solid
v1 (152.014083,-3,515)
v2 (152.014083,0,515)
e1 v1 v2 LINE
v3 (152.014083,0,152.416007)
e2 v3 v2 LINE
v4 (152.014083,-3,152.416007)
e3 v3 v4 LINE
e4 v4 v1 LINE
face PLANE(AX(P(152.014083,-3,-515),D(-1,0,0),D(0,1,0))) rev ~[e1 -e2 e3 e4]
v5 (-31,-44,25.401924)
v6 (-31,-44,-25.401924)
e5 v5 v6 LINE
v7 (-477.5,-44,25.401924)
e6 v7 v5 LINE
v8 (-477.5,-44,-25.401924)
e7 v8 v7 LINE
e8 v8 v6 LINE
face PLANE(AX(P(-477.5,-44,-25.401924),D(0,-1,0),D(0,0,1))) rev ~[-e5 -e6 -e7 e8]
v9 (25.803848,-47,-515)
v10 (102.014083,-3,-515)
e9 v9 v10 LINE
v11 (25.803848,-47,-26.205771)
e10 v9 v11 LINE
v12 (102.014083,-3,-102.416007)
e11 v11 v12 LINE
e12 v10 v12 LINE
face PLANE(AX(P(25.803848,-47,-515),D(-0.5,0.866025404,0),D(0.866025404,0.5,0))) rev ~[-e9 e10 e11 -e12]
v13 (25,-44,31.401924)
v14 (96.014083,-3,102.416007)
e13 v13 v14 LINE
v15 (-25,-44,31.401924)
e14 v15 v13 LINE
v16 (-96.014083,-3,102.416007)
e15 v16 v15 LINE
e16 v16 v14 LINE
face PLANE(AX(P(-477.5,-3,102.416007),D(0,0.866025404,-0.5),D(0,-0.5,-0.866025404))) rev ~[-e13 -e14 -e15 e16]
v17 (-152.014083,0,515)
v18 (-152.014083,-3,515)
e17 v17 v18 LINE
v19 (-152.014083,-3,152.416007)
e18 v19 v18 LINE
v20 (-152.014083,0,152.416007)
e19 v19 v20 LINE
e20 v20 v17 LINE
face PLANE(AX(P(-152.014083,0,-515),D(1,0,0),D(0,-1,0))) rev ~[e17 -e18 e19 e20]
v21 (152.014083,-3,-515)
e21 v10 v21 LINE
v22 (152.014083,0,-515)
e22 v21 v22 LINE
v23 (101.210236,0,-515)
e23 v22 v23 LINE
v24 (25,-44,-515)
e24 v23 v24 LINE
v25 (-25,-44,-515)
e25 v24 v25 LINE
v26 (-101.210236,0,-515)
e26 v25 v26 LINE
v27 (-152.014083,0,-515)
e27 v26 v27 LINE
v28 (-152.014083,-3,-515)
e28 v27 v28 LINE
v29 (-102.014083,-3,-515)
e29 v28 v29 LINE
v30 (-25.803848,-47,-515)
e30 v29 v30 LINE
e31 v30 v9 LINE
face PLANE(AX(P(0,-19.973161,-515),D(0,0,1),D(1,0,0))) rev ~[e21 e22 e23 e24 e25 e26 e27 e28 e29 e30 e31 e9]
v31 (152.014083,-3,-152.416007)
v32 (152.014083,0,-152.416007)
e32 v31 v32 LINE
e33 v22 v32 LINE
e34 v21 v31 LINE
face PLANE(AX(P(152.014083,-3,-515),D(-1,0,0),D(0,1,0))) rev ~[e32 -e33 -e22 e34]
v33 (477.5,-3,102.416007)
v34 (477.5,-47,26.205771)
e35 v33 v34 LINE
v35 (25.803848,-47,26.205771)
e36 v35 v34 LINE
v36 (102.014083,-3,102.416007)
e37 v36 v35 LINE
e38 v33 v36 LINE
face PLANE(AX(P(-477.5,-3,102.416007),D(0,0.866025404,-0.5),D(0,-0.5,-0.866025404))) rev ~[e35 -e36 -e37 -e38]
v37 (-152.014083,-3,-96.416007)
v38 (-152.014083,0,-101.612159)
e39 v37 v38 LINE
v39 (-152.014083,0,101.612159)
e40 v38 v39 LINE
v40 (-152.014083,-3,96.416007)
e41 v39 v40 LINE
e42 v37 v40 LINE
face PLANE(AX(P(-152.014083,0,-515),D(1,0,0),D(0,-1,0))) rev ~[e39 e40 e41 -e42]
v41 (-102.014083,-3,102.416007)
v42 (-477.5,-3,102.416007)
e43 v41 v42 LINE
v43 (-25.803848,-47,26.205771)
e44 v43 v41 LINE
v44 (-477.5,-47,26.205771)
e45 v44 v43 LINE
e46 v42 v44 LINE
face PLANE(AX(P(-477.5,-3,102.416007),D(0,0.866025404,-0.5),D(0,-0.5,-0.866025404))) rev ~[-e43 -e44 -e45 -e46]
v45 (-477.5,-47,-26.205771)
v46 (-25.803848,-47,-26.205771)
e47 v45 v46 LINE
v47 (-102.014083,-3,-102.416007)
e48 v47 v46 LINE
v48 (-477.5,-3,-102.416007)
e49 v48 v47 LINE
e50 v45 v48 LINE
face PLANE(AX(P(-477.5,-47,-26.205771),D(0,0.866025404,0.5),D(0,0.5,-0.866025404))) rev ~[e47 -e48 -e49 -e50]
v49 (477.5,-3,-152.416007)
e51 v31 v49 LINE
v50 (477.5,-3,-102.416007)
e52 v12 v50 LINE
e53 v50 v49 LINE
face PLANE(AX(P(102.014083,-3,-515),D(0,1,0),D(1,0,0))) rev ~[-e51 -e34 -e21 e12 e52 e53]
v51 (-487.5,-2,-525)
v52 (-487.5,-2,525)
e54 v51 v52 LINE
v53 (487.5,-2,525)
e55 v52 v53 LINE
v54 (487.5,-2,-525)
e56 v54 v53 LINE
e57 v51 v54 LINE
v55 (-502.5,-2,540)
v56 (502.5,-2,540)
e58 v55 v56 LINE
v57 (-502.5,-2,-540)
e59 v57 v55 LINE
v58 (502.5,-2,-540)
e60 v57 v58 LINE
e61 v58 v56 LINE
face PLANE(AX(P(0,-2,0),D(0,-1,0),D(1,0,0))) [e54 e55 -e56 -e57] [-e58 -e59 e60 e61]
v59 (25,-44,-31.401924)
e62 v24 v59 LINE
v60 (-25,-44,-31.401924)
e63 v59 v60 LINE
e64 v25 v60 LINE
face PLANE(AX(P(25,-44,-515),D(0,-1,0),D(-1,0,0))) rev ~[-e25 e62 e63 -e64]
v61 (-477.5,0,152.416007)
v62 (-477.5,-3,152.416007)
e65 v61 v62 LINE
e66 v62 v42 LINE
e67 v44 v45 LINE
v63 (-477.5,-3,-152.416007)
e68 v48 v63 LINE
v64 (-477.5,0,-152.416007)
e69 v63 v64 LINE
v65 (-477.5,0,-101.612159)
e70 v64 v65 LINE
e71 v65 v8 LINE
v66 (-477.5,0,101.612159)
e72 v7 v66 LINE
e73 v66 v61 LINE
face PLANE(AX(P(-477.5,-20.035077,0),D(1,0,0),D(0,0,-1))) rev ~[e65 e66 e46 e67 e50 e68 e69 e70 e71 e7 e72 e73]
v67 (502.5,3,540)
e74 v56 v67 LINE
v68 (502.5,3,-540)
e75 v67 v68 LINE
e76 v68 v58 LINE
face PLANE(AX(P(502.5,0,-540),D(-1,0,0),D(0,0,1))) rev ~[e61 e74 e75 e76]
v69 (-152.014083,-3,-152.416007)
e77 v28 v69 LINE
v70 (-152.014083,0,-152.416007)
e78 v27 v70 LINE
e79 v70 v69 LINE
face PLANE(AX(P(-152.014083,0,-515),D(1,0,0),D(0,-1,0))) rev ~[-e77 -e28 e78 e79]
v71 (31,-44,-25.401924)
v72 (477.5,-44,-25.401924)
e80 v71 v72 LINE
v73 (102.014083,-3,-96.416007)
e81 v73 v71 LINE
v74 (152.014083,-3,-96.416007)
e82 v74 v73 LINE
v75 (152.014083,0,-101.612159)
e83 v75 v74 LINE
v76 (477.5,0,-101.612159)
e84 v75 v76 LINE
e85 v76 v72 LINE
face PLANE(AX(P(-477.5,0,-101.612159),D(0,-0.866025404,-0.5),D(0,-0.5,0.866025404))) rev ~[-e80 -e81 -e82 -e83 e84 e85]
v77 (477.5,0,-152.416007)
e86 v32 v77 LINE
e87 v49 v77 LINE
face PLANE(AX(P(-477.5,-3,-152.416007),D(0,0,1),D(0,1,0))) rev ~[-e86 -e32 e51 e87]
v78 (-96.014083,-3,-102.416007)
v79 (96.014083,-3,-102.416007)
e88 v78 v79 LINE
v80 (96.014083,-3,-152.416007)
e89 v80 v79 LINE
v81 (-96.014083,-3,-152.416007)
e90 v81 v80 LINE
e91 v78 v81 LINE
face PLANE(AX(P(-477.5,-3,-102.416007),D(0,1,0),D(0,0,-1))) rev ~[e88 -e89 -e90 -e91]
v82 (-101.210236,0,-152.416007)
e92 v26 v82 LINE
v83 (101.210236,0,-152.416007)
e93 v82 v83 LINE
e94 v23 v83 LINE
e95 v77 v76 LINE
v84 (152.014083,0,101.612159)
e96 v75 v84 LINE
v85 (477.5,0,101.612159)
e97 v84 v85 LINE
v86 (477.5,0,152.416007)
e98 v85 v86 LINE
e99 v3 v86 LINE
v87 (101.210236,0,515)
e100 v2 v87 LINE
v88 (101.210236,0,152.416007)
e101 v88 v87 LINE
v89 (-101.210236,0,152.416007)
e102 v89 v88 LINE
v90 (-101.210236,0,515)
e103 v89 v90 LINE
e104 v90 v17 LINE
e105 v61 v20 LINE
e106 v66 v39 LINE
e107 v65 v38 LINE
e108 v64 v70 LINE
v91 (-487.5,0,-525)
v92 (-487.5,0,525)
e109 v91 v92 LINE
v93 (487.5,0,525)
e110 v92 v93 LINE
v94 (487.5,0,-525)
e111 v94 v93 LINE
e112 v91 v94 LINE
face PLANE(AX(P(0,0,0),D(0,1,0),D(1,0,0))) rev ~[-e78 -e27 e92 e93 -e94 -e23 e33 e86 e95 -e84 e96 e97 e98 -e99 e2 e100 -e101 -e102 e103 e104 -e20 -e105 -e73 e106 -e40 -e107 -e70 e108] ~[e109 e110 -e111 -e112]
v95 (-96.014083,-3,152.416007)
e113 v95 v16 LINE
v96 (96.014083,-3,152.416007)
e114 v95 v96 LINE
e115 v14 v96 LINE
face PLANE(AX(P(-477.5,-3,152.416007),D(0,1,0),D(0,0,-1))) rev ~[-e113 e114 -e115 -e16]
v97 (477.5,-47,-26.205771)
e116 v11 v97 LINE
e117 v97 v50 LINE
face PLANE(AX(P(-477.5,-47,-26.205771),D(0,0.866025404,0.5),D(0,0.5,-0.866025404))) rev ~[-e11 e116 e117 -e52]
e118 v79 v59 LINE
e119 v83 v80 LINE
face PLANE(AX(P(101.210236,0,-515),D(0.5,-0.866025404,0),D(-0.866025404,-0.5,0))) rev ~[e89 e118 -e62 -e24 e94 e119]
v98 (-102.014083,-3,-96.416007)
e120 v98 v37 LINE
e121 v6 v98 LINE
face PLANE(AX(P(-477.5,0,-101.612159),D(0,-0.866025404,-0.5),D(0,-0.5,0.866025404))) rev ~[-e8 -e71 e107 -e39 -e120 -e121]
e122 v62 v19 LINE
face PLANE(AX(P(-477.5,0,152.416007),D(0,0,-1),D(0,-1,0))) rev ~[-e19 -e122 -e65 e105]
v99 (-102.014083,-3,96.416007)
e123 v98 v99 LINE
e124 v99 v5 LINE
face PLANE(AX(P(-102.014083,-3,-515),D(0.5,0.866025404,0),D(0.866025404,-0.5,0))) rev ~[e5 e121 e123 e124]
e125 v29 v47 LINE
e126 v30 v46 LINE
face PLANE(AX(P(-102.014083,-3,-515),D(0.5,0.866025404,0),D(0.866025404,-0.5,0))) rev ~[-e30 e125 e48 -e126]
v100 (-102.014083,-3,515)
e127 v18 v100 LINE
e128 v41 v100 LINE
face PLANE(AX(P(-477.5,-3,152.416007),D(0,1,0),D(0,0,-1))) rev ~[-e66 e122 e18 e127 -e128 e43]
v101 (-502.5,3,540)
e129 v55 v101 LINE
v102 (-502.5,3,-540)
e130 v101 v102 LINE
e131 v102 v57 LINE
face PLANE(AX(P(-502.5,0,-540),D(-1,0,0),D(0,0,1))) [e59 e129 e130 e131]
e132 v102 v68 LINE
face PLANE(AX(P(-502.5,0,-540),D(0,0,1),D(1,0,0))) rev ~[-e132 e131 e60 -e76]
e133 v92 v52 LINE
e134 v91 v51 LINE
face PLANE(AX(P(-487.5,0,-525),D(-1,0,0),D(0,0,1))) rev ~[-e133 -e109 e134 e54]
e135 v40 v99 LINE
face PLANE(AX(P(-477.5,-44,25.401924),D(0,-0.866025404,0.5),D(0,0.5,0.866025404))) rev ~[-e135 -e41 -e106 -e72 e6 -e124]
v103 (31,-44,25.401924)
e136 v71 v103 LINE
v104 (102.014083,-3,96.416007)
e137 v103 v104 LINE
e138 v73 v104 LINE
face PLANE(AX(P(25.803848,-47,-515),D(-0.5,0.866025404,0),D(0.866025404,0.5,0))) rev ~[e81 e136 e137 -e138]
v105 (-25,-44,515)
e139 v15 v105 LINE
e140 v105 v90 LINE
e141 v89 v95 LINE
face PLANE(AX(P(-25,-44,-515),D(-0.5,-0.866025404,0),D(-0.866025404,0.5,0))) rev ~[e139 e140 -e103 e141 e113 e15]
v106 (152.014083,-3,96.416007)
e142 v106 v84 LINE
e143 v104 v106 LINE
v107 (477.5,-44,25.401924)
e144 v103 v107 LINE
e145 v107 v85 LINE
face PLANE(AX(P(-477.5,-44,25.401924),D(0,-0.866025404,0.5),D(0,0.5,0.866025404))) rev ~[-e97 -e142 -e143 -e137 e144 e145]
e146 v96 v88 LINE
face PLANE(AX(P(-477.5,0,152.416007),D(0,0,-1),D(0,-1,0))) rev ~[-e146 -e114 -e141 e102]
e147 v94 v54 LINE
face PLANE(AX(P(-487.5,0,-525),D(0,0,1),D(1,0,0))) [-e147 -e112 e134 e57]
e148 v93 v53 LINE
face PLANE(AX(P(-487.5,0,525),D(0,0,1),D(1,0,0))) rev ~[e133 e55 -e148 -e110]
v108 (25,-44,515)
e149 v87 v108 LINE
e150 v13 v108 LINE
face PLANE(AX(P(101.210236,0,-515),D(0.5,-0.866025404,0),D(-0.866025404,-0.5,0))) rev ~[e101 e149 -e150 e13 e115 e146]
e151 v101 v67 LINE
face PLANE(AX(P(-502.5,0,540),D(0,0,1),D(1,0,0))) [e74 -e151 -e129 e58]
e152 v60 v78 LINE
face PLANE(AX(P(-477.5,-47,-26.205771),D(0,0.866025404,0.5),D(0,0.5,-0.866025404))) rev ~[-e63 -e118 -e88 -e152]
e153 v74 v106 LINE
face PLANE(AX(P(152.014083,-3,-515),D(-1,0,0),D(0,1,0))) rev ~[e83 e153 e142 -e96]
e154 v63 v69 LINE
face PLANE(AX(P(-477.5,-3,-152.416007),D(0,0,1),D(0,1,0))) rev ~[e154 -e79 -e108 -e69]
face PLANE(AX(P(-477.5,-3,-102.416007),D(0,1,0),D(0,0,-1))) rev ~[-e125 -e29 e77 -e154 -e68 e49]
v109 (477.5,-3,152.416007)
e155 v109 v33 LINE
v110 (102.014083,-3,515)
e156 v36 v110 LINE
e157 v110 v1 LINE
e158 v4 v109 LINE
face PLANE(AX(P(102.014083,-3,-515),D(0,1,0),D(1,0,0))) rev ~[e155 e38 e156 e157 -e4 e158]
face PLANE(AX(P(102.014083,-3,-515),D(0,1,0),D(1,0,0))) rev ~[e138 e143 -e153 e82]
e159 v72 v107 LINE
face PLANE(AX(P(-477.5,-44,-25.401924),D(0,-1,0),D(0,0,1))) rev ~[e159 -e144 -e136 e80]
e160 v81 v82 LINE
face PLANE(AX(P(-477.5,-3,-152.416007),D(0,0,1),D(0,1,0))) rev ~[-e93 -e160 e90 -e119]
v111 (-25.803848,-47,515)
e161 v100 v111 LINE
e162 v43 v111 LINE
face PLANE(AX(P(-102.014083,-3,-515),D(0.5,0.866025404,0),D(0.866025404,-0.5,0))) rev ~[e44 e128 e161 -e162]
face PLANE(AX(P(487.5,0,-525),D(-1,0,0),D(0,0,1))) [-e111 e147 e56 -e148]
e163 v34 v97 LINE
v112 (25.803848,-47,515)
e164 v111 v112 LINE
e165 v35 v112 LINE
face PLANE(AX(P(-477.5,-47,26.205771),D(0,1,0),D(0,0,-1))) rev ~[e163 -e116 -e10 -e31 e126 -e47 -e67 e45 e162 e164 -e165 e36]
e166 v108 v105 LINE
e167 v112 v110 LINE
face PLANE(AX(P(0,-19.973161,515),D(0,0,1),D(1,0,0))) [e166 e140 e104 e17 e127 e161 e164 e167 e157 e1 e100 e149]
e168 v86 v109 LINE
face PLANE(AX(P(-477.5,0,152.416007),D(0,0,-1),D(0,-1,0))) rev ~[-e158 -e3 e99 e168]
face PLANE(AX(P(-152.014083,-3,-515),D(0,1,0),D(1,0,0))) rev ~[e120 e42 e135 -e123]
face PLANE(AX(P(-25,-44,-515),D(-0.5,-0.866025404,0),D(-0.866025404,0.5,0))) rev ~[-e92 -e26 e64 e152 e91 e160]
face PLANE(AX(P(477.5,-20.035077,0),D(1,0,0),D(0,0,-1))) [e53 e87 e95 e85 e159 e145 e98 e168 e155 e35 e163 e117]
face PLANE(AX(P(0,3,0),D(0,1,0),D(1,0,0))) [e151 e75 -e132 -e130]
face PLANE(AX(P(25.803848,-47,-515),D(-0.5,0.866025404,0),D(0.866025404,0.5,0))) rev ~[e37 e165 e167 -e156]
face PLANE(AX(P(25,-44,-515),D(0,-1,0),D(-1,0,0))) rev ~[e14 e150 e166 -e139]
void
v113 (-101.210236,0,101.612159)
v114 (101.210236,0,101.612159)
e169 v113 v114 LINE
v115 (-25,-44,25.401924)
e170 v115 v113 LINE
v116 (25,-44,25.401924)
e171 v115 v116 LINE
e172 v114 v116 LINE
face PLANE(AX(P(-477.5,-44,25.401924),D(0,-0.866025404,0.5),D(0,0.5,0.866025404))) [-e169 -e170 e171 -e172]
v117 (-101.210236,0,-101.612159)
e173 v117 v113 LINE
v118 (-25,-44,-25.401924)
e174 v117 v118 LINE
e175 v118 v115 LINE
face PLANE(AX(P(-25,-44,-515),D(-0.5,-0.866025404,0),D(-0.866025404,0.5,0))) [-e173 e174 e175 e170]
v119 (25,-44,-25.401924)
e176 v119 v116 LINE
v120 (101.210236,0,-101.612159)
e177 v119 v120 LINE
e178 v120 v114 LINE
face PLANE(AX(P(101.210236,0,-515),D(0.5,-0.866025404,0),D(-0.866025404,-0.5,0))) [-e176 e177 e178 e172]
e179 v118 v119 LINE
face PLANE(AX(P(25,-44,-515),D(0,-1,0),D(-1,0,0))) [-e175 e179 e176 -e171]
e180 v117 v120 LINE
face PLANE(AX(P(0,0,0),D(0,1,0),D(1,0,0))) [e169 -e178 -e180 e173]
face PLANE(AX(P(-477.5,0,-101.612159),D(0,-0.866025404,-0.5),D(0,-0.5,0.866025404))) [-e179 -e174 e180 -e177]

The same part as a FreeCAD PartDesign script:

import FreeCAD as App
import Part
import Sketcher

V = App.Vector
Q = App.Units.Quantity

doc = App.newDocument("Part")
body = doc.addObject("PartDesign::Body", "Body")

# Sketch on XZ plane
sketch1 = body.newObject("Sketcher::SketchObject", "Sketch")
sketch1.AttachmentSupport = (doc.getObject("XZ_Plane"), [""])
sketch1.MapMode = "FlatFace"
sketch1.addGeometry(Part.LineSegment(V(-502, -540, 0), V(-502, 540, 0)), False)
sketch1.addGeometry(Part.LineSegment(V(-502, 540, 0), V(502, 540, 0)), False)
sketch1.addGeometry(Part.LineSegment(V(502, 540, 0), V(502, -540, 0)), False)
sketch1.addGeometry(Part.LineSegment(V(502, -540, 0), V(-502, -540, 0)), False)
sketch1.addConstraint(Sketcher.Constraint("Coincident", 0, 2, 1, 1))
sketch1.addConstraint(Sketcher.Constraint("Coincident", 1, 2, 2, 1))
sketch1.addConstraint(Sketcher.Constraint("Coincident", 2, 2, 3, 1))
sketch1.addConstraint(Sketcher.Constraint("Coincident", 3, 2, 0, 1))
sketch1.addConstraint(Sketcher.Constraint("Vertical", 0))
sketch1.addConstraint(Sketcher.Constraint("Horizontal", 1))
sketch1.addConstraint(Sketcher.Constraint("Vertical", 2))
sketch1.addConstraint(Sketcher.Constraint("Horizontal", 3))
sketch1.addConstraint(Sketcher.Constraint("Symmetric", 0, 2, 2, 2, -1, 1))
sketch1.addConstraint(Sketcher.Constraint("DistanceX", 1, 1, 1, 2, Q("1005 mm")))
sketch1.addConstraint(Sketcher.Constraint("DistanceY", 0, 1, 0, 2, Q("1080 mm")))
pad1 = body.newObject("PartDesign::Pad", "Pad")
pad1.Profile = sketch1
pad1.Length = 3
pad1.Reversed = True

# Sketch on XY plane
sketch2 = body.newObject("Sketcher::SketchObject", "Sketch001")
sketch2.AttachmentSupport = (doc.getObject("XY_Plane"), [""])
sketch2.MapMode = "FlatFace"
sketch2.addGeometry(Part.LineSegment(V(25, -44, 0), V(-25, -44, 0)), False)
sketch2.addGeometry(Part.LineSegment(V(-25, -44, 0), V(-101.2, 0, 0)), False)
sketch2.addGeometry(Part.LineSegment(V(-101.2, 0, 0), V(-152, 0, 0)), False)
sketch2.addGeometry(Part.LineSegment(V(-152, 0, 0), V(-152, -3, 0)), False)
sketch2.addGeometry(Part.LineSegment(V(-152, -3, 0), V(-102, -3, 0)), False)
sketch2.addGeometry(Part.LineSegment(V(-102, -3, 0), V(-25.8, -47, 0)), False)
sketch2.addGeometry(Part.LineSegment(V(-25.8, -47, 0), V(25.8, -47, 0)), False)
sketch2.addGeometry(Part.LineSegment(V(25.8, -47, 0), V(102, -3, 0)), False)
sketch2.addGeometry(Part.LineSegment(V(102, -3, 0), V(152, -3, 0)), False)
sketch2.addGeometry(Part.LineSegment(V(152, -3, 0), V(152, 0, 0)), False)
sketch2.addGeometry(Part.LineSegment(V(152, 0, 0), V(101.2, 0, 0)), False)
sketch2.addGeometry(Part.LineSegment(V(101.2, 0, 0), V(25, -44, 0)), False)
sketch2.addConstraint(Sketcher.Constraint("Coincident", 0, 2, 1, 1))
sketch2.addConstraint(Sketcher.Constraint("Coincident", 1, 2, 2, 1))
sketch2.addConstraint(Sketcher.Constraint("Coincident", 2, 2, 3, 1))
sketch2.addConstraint(Sketcher.Constraint("Coincident", 3, 2, 4, 1))
sketch2.addConstraint(Sketcher.Constraint("Coincident", 4, 2, 5, 1))
sketch2.addConstraint(Sketcher.Constraint("Coincident", 5, 2, 6, 1))
sketch2.addConstraint(Sketcher.Constraint("Coincident", 6, 2, 7, 1))
sketch2.addConstraint(Sketcher.Constraint("Coincident", 7, 2, 8, 1))
sketch2.addConstraint(Sketcher.Constraint("Coincident", 8, 2, 9, 1))
sketch2.addConstraint(Sketcher.Constraint("Coincident", 9, 2, 10, 1))
sketch2.addConstraint(Sketcher.Constraint("Coincident", 10, 2, 11, 1))
sketch2.addConstraint(Sketcher.Constraint("Coincident", 11, 2, 0, 1))
sketch2.addConstraint(Sketcher.Constraint("Horizontal", 0))
sketch2.addConstraint(Sketcher.Constraint("Horizontal", 2))
sketch2.addConstraint(Sketcher.Constraint("Vertical", 3))
sketch2.addConstraint(Sketcher.Constraint("Horizontal", 4))
sketch2.addConstraint(Sketcher.Constraint("Horizontal", 6))
sketch2.addConstraint(Sketcher.Constraint("Horizontal", 8))
sketch2.addConstraint(Sketcher.Constraint("Vertical", 9))
sketch2.addConstraint(Sketcher.Constraint("Horizontal", 10))
sketch2.addConstraint(Sketcher.Constraint("Symmetric", 2, 2, 9, 2, -1, 1))
sketch2.addConstraint(Sketcher.Constraint("Symmetric", 4, 2, 7, 2, -2))
sketch2.addConstraint(Sketcher.Constraint("Symmetric", 1, 2, 10, 2, -2))
sketch2.addConstraint(Sketcher.Constraint("Parallel", 1, 5))
sketch2.addConstraint(Sketcher.Constraint("Parallel", 7, 11))
sketch2.addConstraint(Sketcher.Constraint("Equal", 0, 4))
sketch2.addConstraint(Sketcher.Constraint("Equal", 1, 5))
sketch2.addConstraint(Sketcher.Constraint("Equal", 5, 7))
sketch2.addConstraint(Sketcher.Constraint("DistanceX", 0, 2, 0, 1, Q("50 mm")))
sketch2.addConstraint(Sketcher.Constraint("DistanceY", 3, 2, 3, 1, Q("3 mm")))
sketch2.addConstraint(Sketcher.Constraint("Angle", 1, Q("150 deg")))
sketch2.addConstraint(Sketcher.Constraint("Distance", 1, Q("88 mm")))
sketch2.addConstraint(Sketcher.Constraint("DistanceX", 2, 2, 2, 1, Q("50.803848 mm")))
pad2 = body.newObject("PartDesign::Pad", "Pad001")
pad2.Profile = sketch2
pad2.Type = "TwoLengths"
pad2.Length = 515
pad2.Length2 = 515

# Sketch on YZ plane
sketch3 = body.newObject("Sketcher::SketchObject", "Sketch002")
sketch3.AttachmentSupport = (doc.getObject("YZ_Plane"), [""])
sketch3.MapMode = "FlatFace"
sketch3.addGeometry(Part.LineSegment(V(-47, 26.2, 0), V(-47, -26.2, 0)), False)
sketch3.addGeometry(Part.LineSegment(V(-47, -26.2, 0), V(-3, -102.4, 0)), False)
sketch3.addGeometry(Part.LineSegment(V(-3, -102.4, 0), V(-3, -152.4, 0)), False)
sketch3.addGeometry(Part.LineSegment(V(-3, -152.4, 0), V(0, -152.4, 0)), False)
sketch3.addGeometry(Part.LineSegment(V(0, -152.4, 0), V(0, -101.6, 0)), False)
sketch3.addGeometry(Part.LineSegment(V(0, -101.6, 0), V(-44, -25.4, 0)), False)
sketch3.addGeometry(Part.LineSegment(V(-44, -25.4, 0), V(-44, 25.4, 0)), False)
sketch3.addGeometry(Part.LineSegment(V(-44, 25.4, 0), V(0, 101.6, 0)), False)
sketch3.addGeometry(Part.LineSegment(V(0, 101.6, 0), V(0, 152.4, 0)), False)
sketch3.addGeometry(Part.LineSegment(V(0, 152.4, 0), V(-3, 152.4, 0)), False)
sketch3.addGeometry(Part.LineSegment(V(-3, 152.4, 0), V(-3, 102.4, 0)), False)
sketch3.addGeometry(Part.LineSegment(V(-3, 102.4, 0), V(-47, 26.2, 0)), False)
sketch3.addConstraint(Sketcher.Constraint("Coincident", 0, 2, 1, 1))
sketch3.addConstraint(Sketcher.Constraint("Coincident", 1, 2, 2, 1))
sketch3.addConstraint(Sketcher.Constraint("Coincident", 2, 2, 3, 1))
sketch3.addConstraint(Sketcher.Constraint("Coincident", 3, 2, 4, 1))
sketch3.addConstraint(Sketcher.Constraint("Coincident", 4, 2, 5, 1))
sketch3.addConstraint(Sketcher.Constraint("Coincident", 5, 2, 6, 1))
sketch3.addConstraint(Sketcher.Constraint("Coincident", 6, 2, 7, 1))
sketch3.addConstraint(Sketcher.Constraint("Coincident", 7, 2, 8, 1))
sketch3.addConstraint(Sketcher.Constraint("Coincident", 8, 2, 9, 1))
sketch3.addConstraint(Sketcher.Constraint("Coincident", 9, 2, 10, 1))
sketch3.addConstraint(Sketcher.Constraint("Coincident", 10, 2, 11, 1))
sketch3.addConstraint(Sketcher.Constraint("Coincident", 11, 2, 0, 1))
sketch3.addConstraint(Sketcher.Constraint("Vertical", 0))
sketch3.addConstraint(Sketcher.Constraint("Vertical", 2))
sketch3.addConstraint(Sketcher.Constraint("Horizontal", 3))
sketch3.addConstraint(Sketcher.Constraint("Vertical", 4))
sketch3.addConstraint(Sketcher.Constraint("Vertical", 6))
sketch3.addConstraint(Sketcher.Constraint("Vertical", 8))
sketch3.addConstraint(Sketcher.Constraint("Horizontal", 9))
sketch3.addConstraint(Sketcher.Constraint("Vertical", 10))
sketch3.addConstraint(Sketcher.Constraint("Symmetric", 4, 2, 7, 2, -1, 1))
sketch3.addConstraint(Sketcher.Constraint("Symmetric", 3, 2, 8, 2, -1))
sketch3.addConstraint(Sketcher.Constraint("Symmetric", 1, 2, 10, 2, -1))
sketch3.addConstraint(Sketcher.Constraint("Parallel", 1, 5))
sketch3.addConstraint(Sketcher.Constraint("Parallel", 7, 11))
sketch3.addConstraint(Sketcher.Constraint("Equal", 4, 6))
sketch3.addConstraint(Sketcher.Constraint("Equal", 1, 5))
sketch3.addConstraint(Sketcher.Constraint("Equal", 5, 7))
sketch3.addConstraint(Sketcher.Constraint("DistanceX", 3, 1, 3, 2, Q("3 mm")))
sketch3.addConstraint(Sketcher.Constraint("DistanceY", 2, 2, 2, 1, Q("50 mm")))
sketch3.addConstraint(Sketcher.Constraint("Angle", 1, Q("-60 deg")))
sketch3.addConstraint(Sketcher.Constraint("Distance", 1, Q("88 mm")))
sketch3.addConstraint(Sketcher.Constraint("DistanceY", 0, 2, 0, 1, Q("52.411543 mm")))
pad3 = body.newObject("PartDesign::Pad", "Pad002")
pad3.Profile = sketch3
pad3.Type = "TwoLengths"
pad3.Length = 477.5
pad3.Length2 = 477.5

# Sketch on XZ plane
sketch4 = body.newObject("Sketcher::SketchObject", "Sketch003")
sketch4.AttachmentSupport = (doc.getObject("XZ_Plane"), [""])
sketch4.MapMode = "FlatFace"
sketch4.addGeometry(Part.LineSegment(V(-502, 540, 0), V(-502, -540, 0)), False)
sketch4.addGeometry(Part.LineSegment(V(-502, -540, 0), V(502, -540, 0)), False)
sketch4.addGeometry(Part.LineSegment(V(502, -540, 0), V(502, 540, 0)), False)
sketch4.addGeometry(Part.LineSegment(V(502, 540, 0), V(-502, 540, 0)), False)
sketch4.addGeometry(Part.LineSegment(V(488, -525, 0), V(-488, -525, 0)), False)
sketch4.addGeometry(Part.LineSegment(V(-488, -525, 0), V(-488, 525, 0)), False)
sketch4.addGeometry(Part.LineSegment(V(-488, 525, 0), V(488, 525, 0)), False)
sketch4.addGeometry(Part.LineSegment(V(488, 525, 0), V(488, -525, 0)), False)
sketch4.addConstraint(Sketcher.Constraint("Coincident", 0, 2, 1, 1))
sketch4.addConstraint(Sketcher.Constraint("Coincident", 1, 2, 2, 1))
sketch4.addConstraint(Sketcher.Constraint("Coincident", 2, 2, 3, 1))
sketch4.addConstraint(Sketcher.Constraint("Coincident", 3, 2, 0, 1))
sketch4.addConstraint(Sketcher.Constraint("Coincident", 4, 2, 5, 1))
sketch4.addConstraint(Sketcher.Constraint("Coincident", 5, 2, 6, 1))
sketch4.addConstraint(Sketcher.Constraint("Coincident", 6, 2, 7, 1))
sketch4.addConstraint(Sketcher.Constraint("Coincident", 7, 2, 4, 1))
sketch4.addConstraint(Sketcher.Constraint("Vertical", 0))
sketch4.addConstraint(Sketcher.Constraint("Horizontal", 1))
sketch4.addConstraint(Sketcher.Constraint("Vertical", 2))
sketch4.addConstraint(Sketcher.Constraint("Horizontal", 3))
sketch4.addConstraint(Sketcher.Constraint("Horizontal", 4))
sketch4.addConstraint(Sketcher.Constraint("Vertical", 5))
sketch4.addConstraint(Sketcher.Constraint("Horizontal", 6))
sketch4.addConstraint(Sketcher.Constraint("Vertical", 7))
sketch4.addConstraint(Sketcher.Constraint("Symmetric", 0, 2, 2, 2, -1, 1))
sketch4.addConstraint(Sketcher.Constraint("Symmetric", 4, 2, 6, 2, -1, 1))
sketch4.addConstraint(Sketcher.Constraint("DistanceX", 1, 1, 1, 2, Q("1005 mm")))
sketch4.addConstraint(Sketcher.Constraint("DistanceX", 4, 2, 4, 1, Q("975 mm")))
sketch4.addConstraint(Sketcher.Constraint("DistanceY", 0, 2, 0, 1, Q("1080 mm")))
sketch4.addConstraint(Sketcher.Constraint("DistanceY", 5, 1, 5, 2, Q("1050 mm")))
pad4 = body.newObject("PartDesign::Pad", "Pad003")
pad4.Profile = sketch4
pad4.Length = 2

doc.recompute()
